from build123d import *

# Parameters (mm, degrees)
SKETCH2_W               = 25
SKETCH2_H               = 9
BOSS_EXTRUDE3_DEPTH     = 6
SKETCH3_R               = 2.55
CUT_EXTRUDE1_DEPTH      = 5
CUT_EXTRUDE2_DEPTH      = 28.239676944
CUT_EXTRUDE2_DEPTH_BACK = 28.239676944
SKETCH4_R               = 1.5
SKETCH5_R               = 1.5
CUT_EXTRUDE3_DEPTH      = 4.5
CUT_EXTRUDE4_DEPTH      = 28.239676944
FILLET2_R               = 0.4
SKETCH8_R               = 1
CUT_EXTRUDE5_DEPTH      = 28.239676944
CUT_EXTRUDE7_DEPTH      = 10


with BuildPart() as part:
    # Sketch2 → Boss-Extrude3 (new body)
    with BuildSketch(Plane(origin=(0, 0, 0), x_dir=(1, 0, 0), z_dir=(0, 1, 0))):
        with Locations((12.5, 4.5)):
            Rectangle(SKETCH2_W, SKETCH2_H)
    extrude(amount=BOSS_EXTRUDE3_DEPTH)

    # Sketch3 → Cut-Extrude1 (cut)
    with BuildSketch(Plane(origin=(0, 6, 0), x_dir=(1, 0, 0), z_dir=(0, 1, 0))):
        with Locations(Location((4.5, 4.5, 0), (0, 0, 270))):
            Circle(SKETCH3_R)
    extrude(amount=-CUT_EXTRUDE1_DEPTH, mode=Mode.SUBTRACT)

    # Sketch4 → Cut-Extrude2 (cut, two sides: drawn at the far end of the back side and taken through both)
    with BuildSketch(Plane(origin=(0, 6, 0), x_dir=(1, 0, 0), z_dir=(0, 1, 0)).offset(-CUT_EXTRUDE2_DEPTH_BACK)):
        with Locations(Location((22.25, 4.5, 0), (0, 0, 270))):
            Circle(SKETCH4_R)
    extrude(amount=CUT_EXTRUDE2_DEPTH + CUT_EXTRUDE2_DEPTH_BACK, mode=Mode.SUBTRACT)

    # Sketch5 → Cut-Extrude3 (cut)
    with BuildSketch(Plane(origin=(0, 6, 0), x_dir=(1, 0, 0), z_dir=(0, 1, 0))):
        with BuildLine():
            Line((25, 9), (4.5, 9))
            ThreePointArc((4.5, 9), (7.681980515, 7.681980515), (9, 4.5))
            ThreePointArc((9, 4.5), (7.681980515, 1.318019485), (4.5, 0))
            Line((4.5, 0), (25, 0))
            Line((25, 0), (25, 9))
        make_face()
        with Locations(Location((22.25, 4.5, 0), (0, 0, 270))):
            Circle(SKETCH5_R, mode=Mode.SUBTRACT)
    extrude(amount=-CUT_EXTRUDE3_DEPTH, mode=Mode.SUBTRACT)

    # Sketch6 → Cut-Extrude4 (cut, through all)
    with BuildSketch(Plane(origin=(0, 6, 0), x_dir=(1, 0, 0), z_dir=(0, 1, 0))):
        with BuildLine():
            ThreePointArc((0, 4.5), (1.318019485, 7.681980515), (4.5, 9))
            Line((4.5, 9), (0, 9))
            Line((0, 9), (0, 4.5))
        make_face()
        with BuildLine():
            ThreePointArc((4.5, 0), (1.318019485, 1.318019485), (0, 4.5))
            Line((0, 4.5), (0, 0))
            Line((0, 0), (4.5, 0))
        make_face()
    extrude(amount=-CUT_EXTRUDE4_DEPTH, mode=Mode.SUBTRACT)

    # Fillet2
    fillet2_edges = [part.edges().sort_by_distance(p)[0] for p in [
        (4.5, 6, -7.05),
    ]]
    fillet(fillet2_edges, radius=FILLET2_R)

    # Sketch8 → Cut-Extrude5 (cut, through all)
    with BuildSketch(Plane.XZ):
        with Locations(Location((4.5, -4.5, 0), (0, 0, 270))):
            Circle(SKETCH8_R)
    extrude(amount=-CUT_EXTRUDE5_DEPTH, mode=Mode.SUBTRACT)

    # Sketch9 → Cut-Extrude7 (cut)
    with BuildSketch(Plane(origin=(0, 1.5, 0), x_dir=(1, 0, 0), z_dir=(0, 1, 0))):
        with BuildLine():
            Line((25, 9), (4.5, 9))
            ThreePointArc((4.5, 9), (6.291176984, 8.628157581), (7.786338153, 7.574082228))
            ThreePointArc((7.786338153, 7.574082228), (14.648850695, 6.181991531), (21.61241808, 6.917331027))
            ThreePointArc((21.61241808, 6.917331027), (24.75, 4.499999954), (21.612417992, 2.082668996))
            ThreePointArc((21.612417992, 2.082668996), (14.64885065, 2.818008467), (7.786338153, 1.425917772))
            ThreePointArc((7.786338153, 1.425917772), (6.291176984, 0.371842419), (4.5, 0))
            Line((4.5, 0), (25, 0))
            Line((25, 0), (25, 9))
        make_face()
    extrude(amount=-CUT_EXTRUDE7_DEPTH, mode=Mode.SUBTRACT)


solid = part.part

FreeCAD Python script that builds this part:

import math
import FreeCAD as App
import Part
import Sketcher

V = App.Vector


def edges_at(feature, points):
    """Names of the edges that pass closest to the given points."""
    edges = feature.Shape.Edges
    near = lambda p: min(range(len(edges)), key=lambda i: edges[i].distToShape(Part.Vertex(*p))[0])
    return sorted({f"Edge{near(p) + 1}" for p in points})

doc = App.newDocument("Part")
params = doc.addObject("Spreadsheet::Sheet", "Params")
for row, (alias, value) in enumerate([
    ("sketch1_width", "25 mm"),
    ("sketch1_height", "9 mm"),
    ("pad1_length", "6 mm"),
    ("sketch2_diameter", "5.1 mm"),
    ("pocket1_length", "5 mm"),
    ("sketch3_diameter", "3 mm"),
    ("sketch4_diameter", "3 mm"),
    ("sketch4_radius", "4.5 mm"),
    ("sketch4_width", "20.5 mm"),
    ("pocket3_length", "4.5 mm"),
    ("sketch5_radius", "4.5 mm"),
    ("fillet_radius", "0.4 mm"),
    ("sketch6_diameter", "2 mm"),
    ("sketch7_radius", "4.5 mm"),
    ("sketch7_radius2", "2.5 mm"),
    ("sketch7_width", "20.5 mm"),
    ("pocket6_length", "10 mm"),
], start=1):
    params.set(f"A{row}", alias)
    params.set(f"B{row}", "=" + value)
    params.setAlias(f"B{row}", alias)

body = doc.addObject("PartDesign::Body", "Body")

# Sketch on XZ plane
sketch1 = body.newObject("Sketcher::SketchObject", "Sketch")
sketch1.AttachmentSupport = (doc.getObject("XZ_Plane"), [""])
sketch1.MapMode = "FlatFace"
sketch1.addGeometry(Part.LineSegment(V(0, -9, 0), V(0, 0, 0)), False)
sketch1.addGeometry(Part.LineSegment(V(0, 0, 0), V(25, 0, 0)), False)
sketch1.addGeometry(Part.LineSegment(V(25, 0, 0), V(25, -9, 0)), False)
sketch1.addGeometry(Part.LineSegment(V(25, -9, 0), V(0, -9, 0)), False)
sketch1.addConstraint(Sketcher.Constraint("Coincident", 0, 2, 1, 1))
sketch1.addConstraint(Sketcher.Constraint("Coincident", 1, 2, 2, 1))
sketch1.addConstraint(Sketcher.Constraint("Coincident", 2, 2, 3, 1))
sketch1.addConstraint(Sketcher.Constraint("Coincident", 3, 2, 0, 1))
sketch1.addConstraint(Sketcher.Constraint("Vertical", 0))
sketch1.addConstraint(Sketcher.Constraint("Horizontal", 1))
sketch1.addConstraint(Sketcher.Constraint("Vertical", 2))
sketch1.addConstraint(Sketcher.Constraint("Horizontal", 3))
sketch1.addConstraint(Sketcher.Constraint("Coincident", 0, 2, -1, 1))
sketch1.addConstraint(Sketcher.Constraint("DistanceX", 1, 1, 1, 2, 25.0))
sketch1.addConstraint(Sketcher.Constraint("DistanceY", 0, 1, 0, 2, 9.0))
sketch1.setExpression("Constraints[9]", "Params.sketch1_width")
sketch1.setExpression("Constraints[10]", "Params.sketch1_height")
pad1 = body.newObject("PartDesign::Pad", "Pad")
pad1.Profile = sketch1
pad1.setExpression("Length", "Params.pad1_length")
pad1.Reversed = True

# Sketch on XZ plane
sketch2 = body.newObject("Sketcher::SketchObject", "Sketch001")
sketch2.AttachmentSupport = (doc.getObject("XZ_Plane"), [""])
sketch2.MapMode = "FlatFace"
sketch2.AttachmentOffset = App.Placement(V(0, 0, -6), App.Rotation())
sketch2.addGeometry(Part.Circle(V(4.5, -4.5, 0), V(0, 0, 1), 2.55), False)
sketch2.addConstraint(Sketcher.Constraint("Diameter", 0, 5.1))
sketch2.addConstraint(Sketcher.Constraint("DistanceX", -1, 1, 0, 3, 4.5))
sketch2.addConstraint(Sketcher.Constraint("DistanceY", 0, 3, -1, 1, 4.5))
sketch2.setExpression("Constraints[0]", "Params.sketch2_diameter")
pocket1 = body.newObject("PartDesign::Pocket", "Pocket")
pocket1.Profile = sketch2
pocket1.setExpression("Length", "Params.pocket1_length")
pocket1.Reversed = True

# Sketch on XZ plane
sketch3 = body.newObject("Sketcher::SketchObject", "Sketch002")
sketch3.AttachmentSupport = (doc.getObject("XZ_Plane"), [""])
sketch3.MapMode = "FlatFace"
sketch3.AttachmentOffset = App.Placement(V(0, 0, -6), App.Rotation())
sketch3.addGeometry(Part.Circle(V(22.25, -4.5, 0), V(0, 0, 1), 1.5), False)
sketch3.addConstraint(Sketcher.Constraint("Diameter", 0, 3.0))
sketch3.addConstraint(Sketcher.Constraint("DistanceY", 0, 3, -1, 1, 4.5))
sketch3.addConstraint(Sketcher.Constraint("DistanceX", -1, 1, 0, 3, 22.25))
sketch3.setExpression("Constraints[0]", "Params.sketch3_diameter")
pocket2 = body.newObject("PartDesign::Pocket", "Pocket001")
pocket2.Profile = sketch3
pocket2.Type = "ThroughAll"
pocket2.Midplane = True

# Sketch on XZ plane
sketch4 = body.newObject("Sketcher::SketchObject", "Sketch003")
sketch4.AttachmentSupport = (doc.getObject("XZ_Plane"), [""])
sketch4.MapMode = "FlatFace"
sketch4.AttachmentOffset = App.Placement(V(0, 0, -6), App.Rotation())
sketch4.addGeometry(Part.LineSegment(V(25, -9, 0), V(4.5, -9, 0)), False)
sketch4.addGeometry(Part.ArcOfCircle(Part.Circle(V(4.5, -4.5, 0), V(0, 0, 1), 4.5), math.radians(-90), math.radians(0)), False)
sketch4.addGeometry(Part.ArcOfCircle(Part.Circle(V(4.5, -4.5, 0), V(0, 0, 1), 4.5), math.radians(0), math.radians(90)), False)
sketch4.addGeometry(Part.LineSegment(V(4.5, 0, 0), V(25, 0, 0)), False)
sketch4.addGeometry(Part.LineSegment(V(25, 0, 0), V(25, -9, 0)), False)
sketch4.addGeometry(Part.Circle(V(22.25, -4.5, 0), V(0, 0, 1), 1.5), False)
sketch4.addConstraint(Sketcher.Constraint("Tangent", 0, 2, 1, 1))
sketch4.addConstraint(Sketcher.Constraint("Tangent", 1, 2, 2, 1))
sketch4.addConstraint(Sketcher.Constraint("Tangent", 2, 2, 3, 1))
sketch4.addConstraint(Sketcher.Constraint("Coincident", 3, 2, 4, 1))
sketch4.addConstraint(Sketcher.Constraint("Coincident", 4, 2, 0, 1))
sketch4.addConstraint(Sketcher.Constraint("Horizontal", 0))
sketch4.addConstraint(Sketcher.Constraint("Horizontal", 3))
sketch4.addConstraint(Sketcher.Constraint("Vertical", 4))
sketch4.addConstraint(Sketcher.Constraint("Equal", 1, 2))
sketch4.addConstraint(Sketcher.Constraint("PointOnObject", 2, 2, -1))
sketch4.addConstraint(Sketcher.Constraint("Horizontal", 2, 3, 5, 3))
sketch4.addConstraint(Sketcher.Constraint("Horizontal", 5, 3, 1, 2))
sketch4.addConstraint(Sketcher.Constraint("Diameter", 5, 3.0))
sketch4.addConstraint(Sketcher.Constraint("Radius", 1, 4.5))
sketch4.addConstraint(Sketcher.Constraint("DistanceX", 0, 2, 0, 1, 20.5))
sketch4.addConstraint(Sketcher.Constraint("DistanceX", -1, 1, 1, 2, 9.0))
sketch4.addConstraint(Sketcher.Constraint("DistanceX", -1, 1, 5, 3, 22.25))
sketch4.setExpression("Constraints[12]", "Params.sketch4_diameter")
sketch4.setExpression("Constraints[13]", "Params.sketch4_radius")
sketch4.setExpression("Constraints[14]", "Params.sketch4_width")
pocket3 = body.newObject("PartDesign::Pocket", "Pocket002")
pocket3.Profile = sketch4
pocket3.setExpression("Length", "Params.pocket3_length")
pocket3.Reversed = True

# Sketch on XZ plane
sketch5 = body.newObject("Sketcher::SketchObject", "Sketch004")
sketch5.AttachmentSupport = (doc.getObject("XZ_Plane"), [""])
sketch5.MapMode = "FlatFace"
sketch5.AttachmentOffset = App.Placement(V(0, 0, -6), App.Rotation())
sketch5.addGeometry(Part.ArcOfCircle(Part.Circle(V(4.5, -4.5, 0), V(0, 0, 1), 4.5), math.radians(-180), math.radians(-90)), False)
sketch5.addGeometry(Part.LineSegment(V(4.5, -9, 0), V(0, -9, 0)), False)
sketch5.addGeometry(Part.LineSegment(V(0, -9, 0), V(0, -4.5, 0)), False)
sketch5.addGeometry(Part.ArcOfCircle(Part.Circle(V(4.5, -4.5, 0), V(0, 0, 1), 4.5), math.radians(90), math.radians(180)), False)
sketch5.addGeometry(Part.LineSegment(V(0, -4.5, 0), V(0, 0, 0)), False)
sketch5.addGeometry(Part.LineSegment(V(0, 0, 0), V(4.5, 0, 0)), False)
sketch5.addConstraint(Sketcher.Constraint("Tangent", 0, 2, 1, 1))
sketch5.addConstraint(Sketcher.Constraint("Coincident", 1, 2, 2, 1))
sketch5.addConstraint(Sketcher.Constraint("Tangent", 2, 2, 0, 1))
sketch5.addConstraint(Sketcher.Constraint("Tangent", 3, 2, 4, 1))
sketch5.addConstraint(Sketcher.Constraint("Coincident", 4, 2, 5, 1))
sketch5.addConstraint(Sketcher.Constraint("Tangent", 5, 2, 3, 1))
sketch5.addConstraint(Sketcher.Constraint("Horizontal", 1))
sketch5.addConstraint(Sketcher.Constraint("Vertical", 2))
sketch5.addConstraint(Sketcher.Constraint("Vertical", 4))
sketch5.addConstraint(Sketcher.Constraint("Horizontal", 5))
sketch5.addConstraint(Sketcher.Constraint("Coincident", 4, 2, -1, 1))
sketch5.addConstraint(Sketcher.Constraint("Coincident", 3, 3, 0, 3))
sketch5.addConstraint(Sketcher.Constraint("Equal", 0, 3))
sketch5.addConstraint(Sketcher.Constraint("Radius", 0, 4.5))
sketch5.setExpression("Constraints[13]", "Params.sketch5_radius")
pocket4 = body.newObject("PartDesign::Pocket", "Pocket003")
pocket4.Profile = sketch5
pocket4.Type = "ThroughAll"
pocket4.Reversed = True
doc.recompute()

fillet = body.newObject("PartDesign::Fillet", "Fillet")
fillet.Base = (pocket4, edges_at(pocket4, [(4.5, 6, -7.05)]))
fillet.setExpression("Radius", "Params.fillet_radius")

# Sketch on XZ plane
sketch6 = body.newObject("Sketcher::SketchObject", "Sketch005")
sketch6.AttachmentSupport = (doc.getObject("XZ_Plane"), [""])
sketch6.MapMode = "FlatFace"
sketch6.addGeometry(Part.Circle(V(4.5, -4.5, 0), V(0, 0, 1), 1), False)
sketch6.addConstraint(Sketcher.Constraint("Diameter", 0, 2.0))
sketch6.addConstraint(Sketcher.Constraint("DistanceX", -1, 1, 0, 3, 4.5))
sketch6.addConstraint(Sketcher.Constraint("DistanceY", 0, 3, -1, 1, 4.5))
sketch6.setExpression("Constraints[0]", "Params.sketch6_diameter")
pocket5 = body.newObject("PartDesign::Pocket", "Pocket004")
pocket5.Profile = sketch6
pocket5.Type = "ThroughAll"

# Sketch on XZ plane
sketch7 = body.newObject("Sketcher::SketchObject", "Sketch006")
sketch7.AttachmentSupport = (doc.getObject("XZ_Plane"), [""])
sketch7.MapMode = "FlatFace"
sketch7.AttachmentOffset = App.Placement(V(0, 0, -1.5), App.Rotation())
sketch7.addGeometry(Part.LineSegment(V(25, -9, 0), V(4.5, -9, 0)), False)
sketch7.addGeometry(Part.ArcOfCircle(Part.Circle(V(4.5, -4.5, 0), V(0, 0, 1), 4.5), math.radians(-90), math.radians(-43.088671)), False)
sketch7.addGeometry(Part.ArcOfCircle(Part.Circle(V(15.741164, -29.177628, 0), V(0, 0, 1), 23.021565), math.radians(75.224472), math.radians(110.214642)), False)
sketch7.addGeometry(Part.ArcOfCircle(Part.Circle(V(22.25, -4.5, 0), V(0, 0, 1), 2.5), math.radians(-104.775527), math.radians(104.775529)), False)
sketch7.addGeometry(Part.ArcOfCircle(Part.Circle(V(15.741164, 20.177628, 0), V(0, 0, 1), 23.021565), math.radians(-110.214642), math.radians(-75.224472)), False)
sketch7.addGeometry(Part.ArcOfCircle(Part.Circle(V(4.5, -4.5, 0), V(0, 0, 1), 4.5), math.radians(43.088671), math.radians(90)), False)
sketch7.addGeometry(Part.LineSegment(V(4.5, 0, 0), V(25, 0, 0)), False)
sketch7.addGeometry(Part.LineSegment(V(25, 0, 0), V(25, -9, 0)), False)
sketch7.addConstraint(Sketcher.Constraint("Tangent", 0, 2, 1, 1))
sketch7.addConstraint(Sketcher.Constraint("Coincident", 1, 2, 2, 2))
sketch7.addConstraint(Sketcher.Constraint("Tangent", 2, 1, 3, 1))
sketch7.addConstraint(Sketcher.Constraint("Tangent", 3, 2, 4, 2))
sketch7.addConstraint(Sketcher.Constraint("Coincident", 4, 1, 5, 1))
sketch7.addConstraint(Sketcher.Constraint("Tangent", 5, 2, 6, 1))
sketch7.addConstraint(Sketcher.Constraint("Coincident", 6, 2, 7, 1))
sketch7.addConstraint(Sketcher.Constraint("Coincident", 7, 2, 0, 1))
sketch7.addConstraint(Sketcher.Constraint("Horizontal", 0))
sketch7.addConstraint(Sketcher.Constraint("Horizontal", 6))
sketch7.addConstraint(Sketcher.Constraint("Vertical", 7))
sketch7.addConstraint(Sketcher.Constraint("Coincident", 5, 3, 1, 3))
sketch7.addConstraint(Sketcher.Constraint("Equal", 2, 4))
sketch7.addConstraint(Sketcher.Constraint("Equal", 1, 5))
sketch7.addConstraint(Sketcher.Constraint("PointOnObject", 5, 2, -1))
sketch7.addConstraint(Sketcher.Constraint("Horizontal", 1, 3, 3, 3))
sketch7.addConstraint(Sketcher.Constraint("Vertical", 2, 3, 4, 3))
sketch7.addConstraint(Sketcher.Constraint("Radius", 1, 4.5))
sketch7.addConstraint(Sketcher.Constraint("Radius", 3, 2.5))
sketch7.addConstraint(Sketcher.Constraint("DistanceX", 0, 2, 0, 1, 20.5))
sketch7.addConstraint(Sketcher.Constraint("DistanceX", -1, 1, 6, 2, 25.0))
sketch7.addConstraint(Sketcher.Constraint("DistanceX", -1, 1, 3, 3, 22.25))
sketch7.addConstraint(Sketcher.Constraint("Radius", 2, 23.021565))
sketch7.addConstraint(Sketcher.Constraint("DistanceY", 2, 3, -1, 1, 29.177628))
sketch7.setExpression("Constraints[17]", "Params.sketch7_radius")
sketch7.setExpression("Constraints[18]", "Params.sketch7_radius2")
sketch7.setExpression("Constraints[19]", "Params.sketch7_width")
pocket6 = body.newObject("PartDesign::Pocket", "Pocket005")
pocket6.Profile = sketch7
pocket6.setExpression("Length", "Params.pocket6_length")
pocket6.Reversed = True

doc.recompute()
